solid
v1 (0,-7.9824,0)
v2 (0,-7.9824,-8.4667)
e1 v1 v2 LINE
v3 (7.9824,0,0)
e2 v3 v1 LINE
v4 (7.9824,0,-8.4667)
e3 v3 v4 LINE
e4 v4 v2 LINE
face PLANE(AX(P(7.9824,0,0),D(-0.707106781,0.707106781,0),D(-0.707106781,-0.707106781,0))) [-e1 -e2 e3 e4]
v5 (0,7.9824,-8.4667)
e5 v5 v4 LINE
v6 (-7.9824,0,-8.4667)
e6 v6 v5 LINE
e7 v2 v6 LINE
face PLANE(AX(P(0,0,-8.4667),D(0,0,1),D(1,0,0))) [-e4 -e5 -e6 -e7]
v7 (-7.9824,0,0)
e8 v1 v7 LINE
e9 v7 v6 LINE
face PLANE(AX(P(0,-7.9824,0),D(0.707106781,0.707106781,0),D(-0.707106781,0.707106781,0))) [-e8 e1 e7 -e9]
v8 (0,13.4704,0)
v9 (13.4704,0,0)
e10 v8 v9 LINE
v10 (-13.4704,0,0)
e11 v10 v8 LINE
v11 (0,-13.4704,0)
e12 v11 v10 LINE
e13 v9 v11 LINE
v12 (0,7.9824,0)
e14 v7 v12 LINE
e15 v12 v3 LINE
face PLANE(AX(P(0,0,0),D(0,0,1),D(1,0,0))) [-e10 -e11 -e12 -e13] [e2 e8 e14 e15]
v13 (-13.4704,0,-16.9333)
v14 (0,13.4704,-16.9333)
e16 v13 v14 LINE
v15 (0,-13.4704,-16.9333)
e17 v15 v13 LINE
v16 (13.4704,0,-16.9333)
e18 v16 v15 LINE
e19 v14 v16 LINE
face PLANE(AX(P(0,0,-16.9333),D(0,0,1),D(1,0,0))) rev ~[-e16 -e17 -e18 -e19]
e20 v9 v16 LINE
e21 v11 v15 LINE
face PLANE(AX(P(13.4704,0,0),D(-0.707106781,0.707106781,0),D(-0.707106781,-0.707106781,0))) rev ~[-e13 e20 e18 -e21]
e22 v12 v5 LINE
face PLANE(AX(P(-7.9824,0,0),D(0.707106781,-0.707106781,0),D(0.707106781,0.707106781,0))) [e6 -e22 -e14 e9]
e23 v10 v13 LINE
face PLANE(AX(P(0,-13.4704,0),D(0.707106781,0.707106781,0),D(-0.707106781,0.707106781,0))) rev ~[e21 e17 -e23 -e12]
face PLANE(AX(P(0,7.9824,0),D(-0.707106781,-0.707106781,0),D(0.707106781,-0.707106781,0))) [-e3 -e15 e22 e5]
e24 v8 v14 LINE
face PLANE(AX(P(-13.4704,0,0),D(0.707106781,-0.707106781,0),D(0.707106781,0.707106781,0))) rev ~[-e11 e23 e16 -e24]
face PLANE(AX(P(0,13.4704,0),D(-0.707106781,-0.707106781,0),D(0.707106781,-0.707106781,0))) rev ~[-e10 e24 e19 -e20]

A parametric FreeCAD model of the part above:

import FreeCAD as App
import Part
import Sketcher

V = App.Vector
Q = App.Units.Quantity

doc = App.newDocument("Part")
params = doc.addObject("Spreadsheet::Sheet", "Params")
for row, (alias, value) in enumerate([
    ("sketch1_length", "0.75 in"),
    ("pad1_length", "16.9333 mm"),
    ("pocket1_length", "8.4667 mm"),
], start=1):
    params.set(f"A{row}", alias)
    params.set(f"B{row}", "=" + value)
    params.setAlias(f"B{row}", alias)

body = doc.addObject("PartDesign::Body", "Body")

sketch1 = body.newObject("Sketcher::SketchObject", "Sketch")
sketch1.AttachmentSupport = (doc.getObject("XY_Plane"), [""])
sketch1.MapMode = "FlatFace"
sketch1.addGeometry([
    Part.LineSegment(V(0, -13.4704, 0), V(13.4704, 0, 0)),
    Part.LineSegment(V(13.4704, 0, 0), V(0, 13.4704, 0)),
    Part.LineSegment(V(0, 13.4704, 0), V(-13.4704, 0, 0)),
    Part.LineSegment(V(-13.4704, 0, 0), V(0, -13.4704, 0)),
], False)
sketch1.addConstraint([
    Sketcher.Constraint("Coincident", 0, 2, 1, 1),
    Sketcher.Constraint("Coincident", 1, 2, 2, 1),
    Sketcher.Constraint("Coincident", 2, 2, 3, 1),
    Sketcher.Constraint("Coincident", 3, 2, 0, 1),
    Sketcher.Constraint("Symmetric", 0, 2, 2, 2, -1, 1),
    Sketcher.Constraint("Symmetric", 1, 2, 3, 2, -1, 1),
    Sketcher.Constraint("PointOnObject", 0, 2, -1),
    Sketcher.Constraint("PointOnObject", 1, 2, -2),
    Sketcher.Constraint("Perpendicular", 0, 1),
    Sketcher.Constraint("Distance", 0, Q("0.75 in")),
])
sketch1.setExpression("Constraints[9]", "Params.sketch1_length")
pad1 = body.newObject("PartDesign::Pad", "Pad")
pad1.Profile = sketch1
pad1.setExpression("Length", "Params.pad1_length")
pad1.Reversed = True

sketch2 = body.newObject("Sketcher::SketchObject", "Sketch001")
sketch2.AttachmentSupport = (doc.getObject("XY_Plane"), [""])
sketch2.MapMode = "FlatFace"
sketch2.addGeometry([
    Part.LineSegment(V(7.9824, 0, 0), V(0, 7.9824, 0)),
    Part.LineSegment(V(0, 7.9824, 0), V(-7.9824, 0, 0)),
    Part.LineSegment(V(-7.9824, 0, 0), V(0, -7.9824, 0)),
    Part.LineSegment(V(0, -7.9824, 0), V(7.9824, 0, 0)),
], False)
sketch2.addConstraint([
    Sketcher.Constraint("Coincident", 0, 2, 1, 1),
    Sketcher.Constraint("Coincident", 1, 2, 2, 1),
    Sketcher.Constraint("Coincident", 2, 2, 3, 1),
    Sketcher.Constraint("Coincident", 3, 2, 0, 1),
    Sketcher.Constraint("Symmetric", 0, 2, 2, 2, -1, 1),
    Sketcher.Constraint("Symmetric", 1, 2, 3, 2, -1, 1),
    Sketcher.Constraint("PointOnObject", 0, 2, -2),
    Sketcher.Constraint("PointOnObject", 1, 2, -1),
    Sketcher.Constraint("Perpendicular", 0, 1),
    Sketcher.Constraint("Distance", 0, 11.2888),
])
pocket1 = body.newObject("PartDesign::Pocket", "Pocket")
pocket1.Profile = sketch2
pocket1.setExpression("Length", "Params.pocket1_length")

doc.recompute()
